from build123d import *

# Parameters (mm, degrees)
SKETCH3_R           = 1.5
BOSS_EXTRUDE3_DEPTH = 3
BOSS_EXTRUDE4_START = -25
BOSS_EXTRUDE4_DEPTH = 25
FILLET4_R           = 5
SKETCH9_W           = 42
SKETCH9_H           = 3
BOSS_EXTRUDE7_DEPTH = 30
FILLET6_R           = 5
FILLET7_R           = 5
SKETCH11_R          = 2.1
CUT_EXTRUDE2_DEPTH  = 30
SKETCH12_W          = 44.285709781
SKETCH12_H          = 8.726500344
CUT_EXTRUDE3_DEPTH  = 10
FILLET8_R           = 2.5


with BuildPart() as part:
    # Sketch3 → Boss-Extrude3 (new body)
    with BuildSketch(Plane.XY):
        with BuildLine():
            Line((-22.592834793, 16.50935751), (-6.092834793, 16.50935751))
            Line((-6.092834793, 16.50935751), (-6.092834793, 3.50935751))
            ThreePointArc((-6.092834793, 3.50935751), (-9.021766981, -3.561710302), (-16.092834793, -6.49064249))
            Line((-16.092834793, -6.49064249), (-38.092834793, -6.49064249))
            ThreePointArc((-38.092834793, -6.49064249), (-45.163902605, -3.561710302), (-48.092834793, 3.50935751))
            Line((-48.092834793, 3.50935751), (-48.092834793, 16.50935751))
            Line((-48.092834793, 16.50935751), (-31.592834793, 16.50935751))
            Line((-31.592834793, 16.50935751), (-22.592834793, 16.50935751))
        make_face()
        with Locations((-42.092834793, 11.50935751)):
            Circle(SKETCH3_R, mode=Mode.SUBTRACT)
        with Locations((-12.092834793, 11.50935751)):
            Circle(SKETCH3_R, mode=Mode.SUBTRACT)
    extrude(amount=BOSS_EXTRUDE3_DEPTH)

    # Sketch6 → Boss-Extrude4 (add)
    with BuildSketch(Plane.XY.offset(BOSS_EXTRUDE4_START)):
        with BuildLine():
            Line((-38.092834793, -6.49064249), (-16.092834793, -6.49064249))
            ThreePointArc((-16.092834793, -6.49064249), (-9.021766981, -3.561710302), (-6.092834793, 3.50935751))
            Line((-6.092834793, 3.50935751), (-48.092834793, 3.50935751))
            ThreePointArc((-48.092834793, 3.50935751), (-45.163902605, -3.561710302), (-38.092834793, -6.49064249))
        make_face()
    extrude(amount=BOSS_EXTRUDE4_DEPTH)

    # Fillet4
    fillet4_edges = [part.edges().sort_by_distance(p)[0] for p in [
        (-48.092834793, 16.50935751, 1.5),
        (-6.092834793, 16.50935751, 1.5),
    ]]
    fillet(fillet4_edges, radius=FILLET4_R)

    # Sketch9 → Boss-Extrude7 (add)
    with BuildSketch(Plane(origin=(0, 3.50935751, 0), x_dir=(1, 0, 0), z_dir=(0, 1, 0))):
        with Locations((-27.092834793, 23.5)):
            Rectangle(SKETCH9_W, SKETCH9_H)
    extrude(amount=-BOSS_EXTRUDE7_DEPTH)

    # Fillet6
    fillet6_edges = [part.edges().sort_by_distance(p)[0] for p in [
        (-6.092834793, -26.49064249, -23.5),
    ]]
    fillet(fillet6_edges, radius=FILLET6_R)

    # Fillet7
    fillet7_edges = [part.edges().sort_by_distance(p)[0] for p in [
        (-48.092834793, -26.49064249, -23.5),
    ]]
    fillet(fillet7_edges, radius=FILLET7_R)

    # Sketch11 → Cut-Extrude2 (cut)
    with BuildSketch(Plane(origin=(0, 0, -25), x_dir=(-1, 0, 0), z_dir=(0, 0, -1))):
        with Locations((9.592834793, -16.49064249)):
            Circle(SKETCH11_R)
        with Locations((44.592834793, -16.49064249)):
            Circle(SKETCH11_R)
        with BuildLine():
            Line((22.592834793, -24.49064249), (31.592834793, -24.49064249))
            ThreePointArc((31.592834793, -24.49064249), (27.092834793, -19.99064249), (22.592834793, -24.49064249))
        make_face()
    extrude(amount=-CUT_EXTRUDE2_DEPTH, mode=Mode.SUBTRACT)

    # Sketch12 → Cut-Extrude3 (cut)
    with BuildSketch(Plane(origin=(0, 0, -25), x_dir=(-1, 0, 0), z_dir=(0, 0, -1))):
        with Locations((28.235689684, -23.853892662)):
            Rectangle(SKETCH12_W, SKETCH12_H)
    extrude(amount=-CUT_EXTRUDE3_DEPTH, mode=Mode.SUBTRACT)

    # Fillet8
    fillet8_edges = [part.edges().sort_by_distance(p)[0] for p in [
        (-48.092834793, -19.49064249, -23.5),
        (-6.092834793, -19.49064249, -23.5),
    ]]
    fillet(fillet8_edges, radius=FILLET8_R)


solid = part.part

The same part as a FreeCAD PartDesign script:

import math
import FreeCAD as App
import Part
import Sketcher
from FreeCAD import Vector
Q = App.Units.Quantity


def edges_at(feature, points):
    """Names of the edges that pass closest to the given points."""
    edges = feature.Shape.Edges
    near = lambda p: min(range(len(edges)), key=lambda i: edges[i].distToShape(Part.Vertex(*p))[0])
    return sorted({f"Edge{near(p) + 1}" for p in points})


def add_polygon(sketch, points):
    """Adds a closed chain of lines whose ends are joined by coincident constraints."""
    first, n = sketch.GeometryCount, len(points)
    for a, b in zip(points, points[1:] + points[:1]):
        sketch.addGeometry(Part.LineSegment(App.Vector(*a, 0), App.Vector(*b, 0)), False)
    for i in range(n):
        sketch.addConstraint(Sketcher.Constraint("Coincident", first + i, 2, first + (i + 1) % n, 1))

doc = App.newDocument("Part")
body = doc.addObject("PartDesign::Body", "Body")

# Sketch on XY plane
sketch1 = doc.addObject("Sketcher::SketchObject", "Sketch")
body.addObject(sketch1)
sketch1.AttachmentSupport = (doc.XY_Plane, [""])
sketch1.MapMode = "FlatFace"
sketch1.addGeometry([
    Part.LineSegment(Vector(-6.1, 3.5, 0), Vector(-6.1, 16.5, 0)),  # 0
    Part.LineSegment(Vector(-6.1, 16.5, 0), Vector(-48.1, 16.5, 0)),  # 1
    Part.LineSegment(Vector(-48.1, 16.5, 0), Vector(-48.1, 3.5, 0)),  # 2
    Part.ArcOfCircle(Part.Circle(Vector(-38.1, 3.5, 0), Vector(0, 0, 1), 10), math.radians(180), math.radians(270)),  # 3
    Part.LineSegment(Vector(-38.1, -6.5, 0), Vector(-16.1, -6.5, 0)),  # 4
    Part.ArcOfCircle(Part.Circle(Vector(-16.1, 3.5, 0), Vector(0, 0, 1), 10), math.radians(-90), math.radians(0)),  # 5
    Part.Circle(Vector(-12.1, 11.5, 0), Vector(0, 0, 1), 1.5),  # 6
    Part.Circle(Vector(-42.1, 11.5, 0), Vector(0, 0, 1), 1.5),  # 7
], False)
sketch1.addConstraint([
    Sketcher.Constraint("Coincident", 0, 2, 1, 1),
    Sketcher.Constraint("Coincident", 1, 2, 2, 1),
    Sketcher.Constraint("Tangent", 2, 2, 3, 1),
    Sketcher.Constraint("Tangent", 3, 2, 4, 1),
    Sketcher.Constraint("Tangent", 4, 2, 5, 1),
    Sketcher.Constraint("Tangent", 5, 2, 0, 1),
    Sketcher.Constraint("Vertical", 0),
    Sketcher.Constraint("Horizontal", 1),
    Sketcher.Constraint("Vertical", 2),
    Sketcher.Constraint("Horizontal", 4),
    Sketcher.Constraint("Equal", 3, 5),
    Sketcher.Constraint("Equal", 6, 7),
    Sketcher.Constraint("Horizontal", 6, 3, 7, 3),
    Sketcher.Constraint("Diameter", 6, Q("3 mm")),
    Sketcher.Constraint("Radius", 3, Q("10 mm")),
    Sketcher.Constraint("DistanceX", 1, 2, 1, 1, Q("42 mm")),
    Sketcher.Constraint("DistanceY", 0, 1, 0, 2, Q("13 mm")),
    Sketcher.Constraint("DistanceX", 5, 3, 6, 3, Q("4 mm")),
    Sketcher.Constraint("DistanceY", 5, 3, 6, 3, Q("8 mm")),
    Sketcher.Constraint("DistanceX", 7, 3, 3, 3, Q("4 mm")),
    Sketcher.Constraint("DistanceX", 3, 3, -1, 1, Q("38.092835 mm")),
    Sketcher.Constraint("DistanceY", -1, 1, 3, 3, Q("3.509358 mm")),
])
pad1 = doc.addObject("PartDesign::Pad", "Pad")
body.addObject(pad1)
pad1.Profile = sketch1
pad1.Length = 3

# Sketch on XY plane
sketch2 = doc.addObject("Sketcher::SketchObject", "Sketch001")
body.addObject(sketch2)
sketch2.AttachmentSupport = (doc.XY_Plane, [""])
sketch2.MapMode = "FlatFace"
sketch2.AttachmentOffset = App.Placement(Vector(0, 0, -25), App.Rotation())
sketch2.addGeometry([
    Part.LineSegment(Vector(-38, -6, 0), Vector(-16, -6, 0)),
    Part.ArcOfCircle(Part.Circle(Vector(-16, 4, 0), Vector(0, 0, 1), 10), math.radians(-90), math.radians(0)),
    Part.LineSegment(Vector(-6, 4, 0), Vector(-48, 4, 0)),
    Part.ArcOfCircle(Part.Circle(Vector(-38, 4, 0), Vector(0, 0, 1), 10), math.radians(180), math.radians(270)),
], False)
sketch2.addConstraint([
    Sketcher.Constraint("Tangent", 0, 2, 1, 1),
    Sketcher.Constraint("Coincident", 1, 2, 2, 1),
    Sketcher.Constraint("Coincident", 2, 2, 3, 1),
    Sketcher.Constraint("Tangent", 3, 2, 0, 1),
    Sketcher.Constraint("Horizontal", 0),
    Sketcher.Constraint("Horizontal", 2),
    Sketcher.Constraint("Equal", 1, 3),
    Sketcher.Constraint("Horizontal", 3, 3, 1, 2),
    Sketcher.Constraint("Radius", 1, Q("10 mm")),
    Sketcher.Constraint("DistanceX", 0, 1, 0, 2, Q("22 mm")),
    Sketcher.Constraint("DistanceX", 1, 3, -1, 1, Q("16.092835 mm")),
    Sketcher.Constraint("DistanceY", -1, 1, 1, 3, Q("3.509358 mm")),
])
pad2 = doc.addObject("PartDesign::Pad", "Pad001")
body.addObject(pad2)
pad2.Profile = sketch2
pad2.Length = 25
doc.recompute()

fillet = doc.addObject("PartDesign::Fillet", "Fillet")
body.addObject(fillet)
fillet.Base = (pad2, edges_at(pad2, [(-48.093, 16.509, 1.5), (-6.093, 16.509, 1.5)]))
fillet.Radius = 5

# Sketch on XZ plane
sketch3 = doc.addObject("Sketcher::SketchObject", "Sketch002")
body.addObject(sketch3)
sketch3.AttachmentSupport = (doc.XZ_Plane, [""])
sketch3.MapMode = "FlatFace"
sketch3.AttachmentOffset = App.Placement(Vector(0, 0, -3.509358), App.Rotation())
add_polygon(sketch3, [(-48.1, -25), (-48.1, -22), (-6.1, -22), (-6.1, -25)])  # lines 0-3
sketch3.addConstraint([
    Sketcher.Constraint("Vertical", 0),
    Sketcher.Constraint("Horizontal", 1),
    Sketcher.Constraint("Vertical", 2),
    Sketcher.Constraint("Horizontal", 3),
    Sketcher.Constraint("DistanceX", 1, 1, 1, 2, Q("42 mm")),
    Sketcher.Constraint("DistanceY", 0, 1, 0, 2, Q("3 mm")),
    Sketcher.Constraint("DistanceY", 0, 2, -1, 1, Q("22 mm")),
    Sketcher.Constraint("DistanceX", 0, 2, -1, 1, Q("48.092835 mm")),
])
pad3 = doc.addObject("PartDesign::Pad", "Pad002")
body.addObject(pad3)
pad3.Profile = sketch3
pad3.Length = 30
doc.recompute()

fillet2 = doc.addObject("PartDesign::Fillet", "Fillet001")
body.addObject(fillet2)
fillet2.Base = (pad3, edges_at(pad3, [(-6.093, -26.491, -23.5)]))
fillet2.Radius = 5
doc.recompute()

fillet3 = doc.addObject("PartDesign::Fillet", "Fillet002")
body.addObject(fillet3)
fillet3.Base = (fillet2, edges_at(fillet2, [(-48.093, -26.491, -23.5)]))
fillet3.Radius = 5

# Sketch on XY plane
sketch4 = doc.addObject("Sketcher::SketchObject", "Sketch003")
body.addObject(sketch4)
sketch4.AttachmentSupport = (doc.XY_Plane, [""])
sketch4.MapMode = "FlatFace"
sketch4.AttachmentOffset = App.Placement(Vector(0, 0, -25), App.Rotation())
sketch4.addGeometry([
    Part.Circle(Vector(-9.6, -16.5, 0), Vector(0, 0, 1), 2.1),
    Part.Circle(Vector(-44.6, -16.5, 0), Vector(0, 0, 1), 2.1),
    Part.LineSegment(Vector(-22.6, -24.5, 0), Vector(-31.6, -24.5, 0)),
    Part.ArcOfCircle(Part.Circle(Vector(-27.1, -24.5, 0), Vector(0, 0, 1), 4.5), math.radians(0), math.radians(180)),
], False)
sketch4.addConstraint([
    Sketcher.Constraint("Coincident", 2, 1, 3, 1),
    Sketcher.Constraint("Coincident", 3, 2, 2, 2),
    Sketcher.Constraint("Horizontal", 2),
    Sketcher.Constraint("Equal", 0, 1),
    Sketcher.Constraint("Horizontal", 0, 3, 1, 3),
    Sketcher.Constraint("Horizontal", 3, 3, 2, 1),
    Sketcher.Constraint("Diameter", 0, Q("4.2 mm")),
    Sketcher.Constraint("Radius", 3, Q("4.5 mm")),
    Sketcher.Constraint("DistanceX", 1, 3, 0, 3, Q("35 mm")),
    Sketcher.Constraint("DistanceY", 3, 3, 0, 3, Q("8 mm")),
    Sketcher.Constraint("DistanceX", 2, 1, 0, 3, Q("13 mm")),
    Sketcher.Constraint("DistanceX", 0, 3, -1, 1, Q("9.592835 mm")),
    Sketcher.Constraint("DistanceY", 0, 3, -1, 1, Q("16.490642 mm")),
])
pocket1 = doc.addObject("PartDesign::Pocket", "Pocket")
body.addObject(pocket1)
pocket1.Profile = sketch4
pocket1.Length = 30
pocket1.Reversed = True

# Sketch on XY plane
sketch5 = doc.addObject("Sketcher::SketchObject", "Sketch004")
body.addObject(sketch5)
sketch5.AttachmentSupport = (doc.XY_Plane, [""])
sketch5.MapMode = "FlatFace"
sketch5.AttachmentOffset = App.Placement(Vector(0, 0, -25), App.Rotation())
add_polygon(sketch5, [(-6, -19), (-6, -28), (-50, -28), (-50, -19)])  # lines 0-3
sketch5.addConstraint([
    Sketcher.Constraint("Vertical", 0),
    Sketcher.Constraint("Horizontal", 1),
    Sketcher.Constraint("Vertical", 2),
    Sketcher.Constraint("Horizontal", 3),
    Sketcher.Constraint("DistanceY", 0, 2, 0, 1, Q("8.7265 mm")),
    Sketcher.Constraint("DistanceX", 1, 2, 1, 1, Q("44.28571 mm")),
    Sketcher.Constraint("DistanceX", 0, 2, -1, 1, Q("6.092835 mm")),
    Sketcher.Constraint("DistanceY", 0, 2, -1, 1, Q("28.217143 mm")),
])
pocket2 = doc.addObject("PartDesign::Pocket", "Pocket001")
body.addObject(pocket2)
pocket2.Profile = sketch5
pocket2.Length = 10
pocket2.Reversed = True
doc.recompute()

fillet4 = doc.addObject("PartDesign::Fillet", "Fillet003")
body.addObject(fillet4)
fillet4.Base = (pocket2, edges_at(pocket2, [(-48.093, -19.491, -23.5), (-6.093, -19.491, -23.5)]))
fillet4.Radius = 2.5

doc.recompute()
